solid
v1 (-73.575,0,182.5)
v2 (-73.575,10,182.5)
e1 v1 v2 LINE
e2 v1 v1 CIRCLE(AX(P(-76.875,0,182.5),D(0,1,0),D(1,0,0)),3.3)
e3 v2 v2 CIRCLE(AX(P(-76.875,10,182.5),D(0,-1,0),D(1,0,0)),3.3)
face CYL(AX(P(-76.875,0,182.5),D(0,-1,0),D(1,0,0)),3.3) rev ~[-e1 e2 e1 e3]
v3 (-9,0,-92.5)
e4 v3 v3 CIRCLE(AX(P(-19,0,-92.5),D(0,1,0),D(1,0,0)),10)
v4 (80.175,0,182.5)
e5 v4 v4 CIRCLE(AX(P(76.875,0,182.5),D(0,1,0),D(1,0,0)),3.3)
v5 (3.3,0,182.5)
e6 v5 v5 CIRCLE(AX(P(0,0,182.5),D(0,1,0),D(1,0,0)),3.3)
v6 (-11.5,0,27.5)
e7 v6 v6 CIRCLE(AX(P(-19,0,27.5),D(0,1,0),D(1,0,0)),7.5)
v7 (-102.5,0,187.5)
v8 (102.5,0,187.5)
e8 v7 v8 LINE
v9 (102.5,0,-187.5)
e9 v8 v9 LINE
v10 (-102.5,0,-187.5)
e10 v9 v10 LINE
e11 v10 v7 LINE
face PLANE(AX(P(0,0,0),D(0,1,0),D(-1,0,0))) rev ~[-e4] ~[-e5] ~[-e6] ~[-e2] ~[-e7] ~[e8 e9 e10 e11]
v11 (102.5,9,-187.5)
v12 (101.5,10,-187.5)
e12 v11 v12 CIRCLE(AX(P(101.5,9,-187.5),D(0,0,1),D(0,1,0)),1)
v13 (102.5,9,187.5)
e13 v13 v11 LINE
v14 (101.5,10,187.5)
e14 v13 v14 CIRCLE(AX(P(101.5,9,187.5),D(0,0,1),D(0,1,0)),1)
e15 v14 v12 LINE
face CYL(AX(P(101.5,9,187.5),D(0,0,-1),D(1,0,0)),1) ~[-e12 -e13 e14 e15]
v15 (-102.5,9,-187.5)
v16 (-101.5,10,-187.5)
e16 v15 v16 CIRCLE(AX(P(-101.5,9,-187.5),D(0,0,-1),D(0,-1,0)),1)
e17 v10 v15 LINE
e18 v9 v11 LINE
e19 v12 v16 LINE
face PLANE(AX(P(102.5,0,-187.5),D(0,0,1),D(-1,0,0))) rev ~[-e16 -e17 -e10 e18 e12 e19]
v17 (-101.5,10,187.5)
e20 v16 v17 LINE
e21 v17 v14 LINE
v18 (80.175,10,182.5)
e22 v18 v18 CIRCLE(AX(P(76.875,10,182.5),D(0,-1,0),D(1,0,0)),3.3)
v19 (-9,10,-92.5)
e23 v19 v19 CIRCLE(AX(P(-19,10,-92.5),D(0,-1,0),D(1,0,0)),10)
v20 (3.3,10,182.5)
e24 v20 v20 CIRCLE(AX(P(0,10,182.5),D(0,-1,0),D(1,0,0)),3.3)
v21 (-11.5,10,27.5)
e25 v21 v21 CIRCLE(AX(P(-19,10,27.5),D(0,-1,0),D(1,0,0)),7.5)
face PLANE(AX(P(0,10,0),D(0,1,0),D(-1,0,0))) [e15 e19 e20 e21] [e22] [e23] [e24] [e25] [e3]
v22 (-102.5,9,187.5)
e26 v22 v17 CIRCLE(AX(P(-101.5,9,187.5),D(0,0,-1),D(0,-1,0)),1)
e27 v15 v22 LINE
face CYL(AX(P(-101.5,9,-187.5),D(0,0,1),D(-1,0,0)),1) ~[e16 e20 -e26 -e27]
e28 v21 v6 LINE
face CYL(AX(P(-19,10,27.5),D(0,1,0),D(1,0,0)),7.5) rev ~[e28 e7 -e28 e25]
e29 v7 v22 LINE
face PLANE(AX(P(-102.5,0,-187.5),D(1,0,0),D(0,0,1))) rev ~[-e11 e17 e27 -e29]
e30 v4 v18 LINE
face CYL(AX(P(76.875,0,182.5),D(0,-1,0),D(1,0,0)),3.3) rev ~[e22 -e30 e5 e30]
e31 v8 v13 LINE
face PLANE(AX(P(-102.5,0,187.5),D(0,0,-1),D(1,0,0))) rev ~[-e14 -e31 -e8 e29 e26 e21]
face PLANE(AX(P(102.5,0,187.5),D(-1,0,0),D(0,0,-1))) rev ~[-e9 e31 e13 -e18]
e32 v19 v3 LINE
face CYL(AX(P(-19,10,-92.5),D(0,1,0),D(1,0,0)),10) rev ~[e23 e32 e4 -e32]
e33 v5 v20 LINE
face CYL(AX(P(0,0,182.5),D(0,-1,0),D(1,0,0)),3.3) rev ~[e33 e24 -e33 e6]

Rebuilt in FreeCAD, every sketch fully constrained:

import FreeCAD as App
import Part
import Sketcher
from FreeCAD import Vector
Q = App.Units.Quantity


def edges_at(feature, points):
    """Names of the edges that pass closest to the given points."""
    edges = feature.Shape.Edges
    near = lambda p: min(range(len(edges)), key=lambda i: edges[i].distToShape(Part.Vertex(*p))[0])
    return sorted({f"Edge{near(p) + 1}" for p in points})

doc = App.newDocument("Part")
body = doc.addObject("PartDesign::Body", "Body")

# Sketch on XZ plane
sketch1 = body.newObject("Sketcher::SketchObject", "Sketch")
sketch1.AttachmentSupport = (doc.getObject("XZ_Plane"), [""])
sketch1.MapMode = "FlatFace"
sketch1.addGeometry(Part.LineSegment(Vector(-102, -188, 0), Vector(-102, 188, 0)), False)
sketch1.addGeometry(Part.LineSegment(Vector(-102, 188, 0), Vector(102, 188, 0)), False)
sketch1.addGeometry(Part.LineSegment(Vector(102, 188, 0), Vector(102, -188, 0)), False)
sketch1.addGeometry(Part.LineSegment(Vector(102, -188, 0), Vector(-102, -188, 0)), False)
sketch1.addConstraint(Sketcher.Constraint("Coincident", 0, 2, 1, 1))
sketch1.addConstraint(Sketcher.Constraint("Coincident", 1, 2, 2, 1))
sketch1.addConstraint(Sketcher.Constraint("Coincident", 2, 2, 3, 1))
sketch1.addConstraint(Sketcher.Constraint("Coincident", 3, 2, 0, 1))
sketch1.addConstraint(Sketcher.Constraint("Vertical", 0))
sketch1.addConstraint(Sketcher.Constraint("Horizontal", 1))
sketch1.addConstraint(Sketcher.Constraint("Vertical", 2))
sketch1.addConstraint(Sketcher.Constraint("Horizontal", 3))
sketch1.addConstraint(Sketcher.Constraint("Symmetric", 0, 2, 2, 2, -1, 1))
sketch1.addConstraint(Sketcher.Constraint("DistanceX", 1, 1, 1, 2, Q("205 mm")))
sketch1.addConstraint(Sketcher.Constraint("DistanceY", 0, 1, 0, 2, Q("375 mm")))
pad1 = body.newObject("PartDesign::Pad", "Pad")
pad1.Profile = sketch1
pad1.Length = 10
pad1.Reversed = True
doc.recompute()

fillet = body.newObject("PartDesign::Fillet", "Fillet")
fillet.Base = (pad1, edges_at(pad1, [(102.5, 10, 0), (-102.5, 10, 0)]))
fillet.Radius = 1

# Sketch on XZ plane
sketch2 = body.newObject("Sketcher::SketchObject", "Sketch001")
sketch2.AttachmentSupport = (doc.getObject("XZ_Plane"), [""])
sketch2.MapMode = "FlatFace"
sketch2.addGeometry(Part.Circle(Vector(76.9, 182.5, 0), Vector(0, 0, 1), 3.3), False)
sketch2.addGeometry(Part.Circle(Vector(-76.9, 182.5, 0), Vector(0, 0, 1), 3.3), False)
sketch2.addGeometry(Part.Circle(Vector(0, 182.5, 0), Vector(0, 0, 1), 3.3), False)
sketch2.addConstraint(Sketcher.Constraint("Equal", 0, 1))
sketch2.addConstraint(Sketcher.Constraint("Equal", 1, 2))
sketch2.addConstraint(Sketcher.Constraint("Symmetric", 0, 3, 1, 3, -2))
sketch2.addConstraint(Sketcher.Constraint("PointOnObject", 2, 3, -2))
sketch2.addConstraint(Sketcher.Constraint("Horizontal", 1, 3, 2, 3))
sketch2.addConstraint(Sketcher.Constraint("Diameter", 0, Q("6.6 mm")))
sketch2.addConstraint(Sketcher.Constraint("DistanceY", -1, 1, 0, 3, Q("182.5 mm")))
sketch2.addConstraint(Sketcher.Constraint("DistanceX", 1, 3, 0, 3, Q("153.75 mm")))
pocket1 = body.newObject("PartDesign::Pocket", "Pocket")
pocket1.Profile = sketch2
pocket1.Length = 10

# Sketch on XZ plane
sketch3 = body.newObject("Sketcher::SketchObject", "Sketch002")
sketch3.AttachmentSupport = (doc.getObject("XZ_Plane"), [""])
sketch3.MapMode = "FlatFace"
sketch3.AttachmentOffset = App.Placement(Vector(0, 0, -10), App.Rotation())
sketch3.addGeometry(Part.Circle(Vector(-19, 28, 0), Vector(0, 0, 1), 8), False)
sketch3.addConstraint(Sketcher.Constraint("Diameter", 0, Q("15 mm")))
sketch3.addConstraint(Sketcher.Constraint("DistanceX", 0, 3, -1, 1, Q("19 mm")))
sketch3.addConstraint(Sketcher.Constraint("DistanceY", -1, 1, 0, 3, Q("27.5 mm")))
pocket2 = body.newObject("PartDesign::Pocket", "Pocket001")
pocket2.Profile = sketch3
pocket2.Length = 10
pocket2.Reversed = True

# Sketch on XZ plane
sketch4 = body.newObject("Sketcher::SketchObject", "Sketch003")
sketch4.AttachmentSupport = (doc.getObject("XZ_Plane"), [""])
sketch4.MapMode = "FlatFace"
sketch4.AttachmentOffset = App.Placement(Vector(0, 0, -10), App.Rotation())
sketch4.addGeometry(Part.Circle(Vector(-19, -92, 0), Vector(0, 0, 1), 10), False)
sketch4.addConstraint(Sketcher.Constraint("Diameter", 0, Q("20 mm")))
sketch4.addConstraint(Sketcher.Constraint("DistanceX", 0, 3, -1, 1, Q("19 mm")))
sketch4.addConstraint(Sketcher.Constraint("DistanceY", 0, 3, -1, 1, Q("92.5 mm")))
pocket3 = body.newObject("PartDesign::Pocket", "Pocket002")
pocket3.Profile = sketch4
pocket3.Length = 10
pocket3.Reversed = True

doc.recompute()
